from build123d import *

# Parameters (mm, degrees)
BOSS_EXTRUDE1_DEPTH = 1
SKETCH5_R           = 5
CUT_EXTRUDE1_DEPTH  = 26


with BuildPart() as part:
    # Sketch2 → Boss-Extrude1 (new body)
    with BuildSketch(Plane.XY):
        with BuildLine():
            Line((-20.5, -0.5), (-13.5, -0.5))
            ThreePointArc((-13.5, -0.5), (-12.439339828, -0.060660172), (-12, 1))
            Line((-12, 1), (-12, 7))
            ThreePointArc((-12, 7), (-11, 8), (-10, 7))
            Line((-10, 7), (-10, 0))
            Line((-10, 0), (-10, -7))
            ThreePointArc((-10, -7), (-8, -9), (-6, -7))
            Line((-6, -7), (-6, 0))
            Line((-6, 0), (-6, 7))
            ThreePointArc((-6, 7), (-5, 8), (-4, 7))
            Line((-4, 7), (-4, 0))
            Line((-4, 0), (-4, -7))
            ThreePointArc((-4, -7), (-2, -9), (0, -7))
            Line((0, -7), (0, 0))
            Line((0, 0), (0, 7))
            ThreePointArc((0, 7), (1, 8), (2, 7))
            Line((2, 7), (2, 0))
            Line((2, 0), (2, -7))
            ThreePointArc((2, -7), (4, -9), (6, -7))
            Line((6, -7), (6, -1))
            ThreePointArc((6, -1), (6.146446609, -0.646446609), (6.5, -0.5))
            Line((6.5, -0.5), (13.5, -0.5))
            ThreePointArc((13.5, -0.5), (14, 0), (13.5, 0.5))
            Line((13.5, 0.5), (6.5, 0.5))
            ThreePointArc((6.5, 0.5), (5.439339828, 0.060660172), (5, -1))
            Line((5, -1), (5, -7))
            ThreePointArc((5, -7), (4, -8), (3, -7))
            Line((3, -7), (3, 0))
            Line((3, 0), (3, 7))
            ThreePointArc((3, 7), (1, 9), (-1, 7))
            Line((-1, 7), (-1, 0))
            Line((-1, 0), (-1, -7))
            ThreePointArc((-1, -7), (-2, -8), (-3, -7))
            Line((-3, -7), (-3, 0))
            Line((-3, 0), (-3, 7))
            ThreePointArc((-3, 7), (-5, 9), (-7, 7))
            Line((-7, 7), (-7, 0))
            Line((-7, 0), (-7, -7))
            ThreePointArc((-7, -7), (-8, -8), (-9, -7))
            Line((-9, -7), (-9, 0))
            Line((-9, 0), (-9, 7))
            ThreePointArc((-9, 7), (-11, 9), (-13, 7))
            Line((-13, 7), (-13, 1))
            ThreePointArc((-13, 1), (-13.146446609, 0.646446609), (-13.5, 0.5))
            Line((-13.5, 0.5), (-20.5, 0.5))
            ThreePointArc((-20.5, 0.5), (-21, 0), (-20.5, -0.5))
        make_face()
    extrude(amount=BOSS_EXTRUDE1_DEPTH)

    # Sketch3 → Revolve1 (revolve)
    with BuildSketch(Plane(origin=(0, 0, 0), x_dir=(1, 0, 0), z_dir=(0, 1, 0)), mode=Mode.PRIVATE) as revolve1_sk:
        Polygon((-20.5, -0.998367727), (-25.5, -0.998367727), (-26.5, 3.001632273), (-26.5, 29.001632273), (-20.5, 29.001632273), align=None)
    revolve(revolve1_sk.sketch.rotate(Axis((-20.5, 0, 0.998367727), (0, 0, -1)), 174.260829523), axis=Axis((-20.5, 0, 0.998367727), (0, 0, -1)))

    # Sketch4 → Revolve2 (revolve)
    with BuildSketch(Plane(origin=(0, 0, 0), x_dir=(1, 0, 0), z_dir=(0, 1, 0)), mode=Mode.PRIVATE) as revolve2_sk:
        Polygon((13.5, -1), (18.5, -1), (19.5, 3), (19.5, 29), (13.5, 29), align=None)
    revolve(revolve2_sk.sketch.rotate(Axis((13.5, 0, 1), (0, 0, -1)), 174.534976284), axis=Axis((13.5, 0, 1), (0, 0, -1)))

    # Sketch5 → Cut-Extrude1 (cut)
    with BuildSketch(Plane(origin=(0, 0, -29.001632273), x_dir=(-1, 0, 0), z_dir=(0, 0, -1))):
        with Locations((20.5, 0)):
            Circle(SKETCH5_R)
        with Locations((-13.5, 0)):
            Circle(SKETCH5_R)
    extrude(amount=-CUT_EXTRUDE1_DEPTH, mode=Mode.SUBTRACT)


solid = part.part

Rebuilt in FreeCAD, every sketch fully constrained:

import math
import FreeCAD as App
import Part
import Sketcher
from FreeCAD import Vector

doc = App.newDocument("Part")
body = doc.addObject("PartDesign::Body", "Body")

# Sketch on XY plane
sketch1 = body.newObject("Sketcher::SketchObject", "Sketch")
sketch1.AttachmentSupport = (doc.getObject("XY_Plane"), [""])
sketch1.MapMode = "FlatFace"
sketch1.addGeometry(Part.LineSegment(Vector(-20.5, -0.5, 0), Vector(-13.5, -0.5, 0)), False)
sketch1.addGeometry(Part.ArcOfCircle(Part.Circle(Vector(-13.5, 1, 0), Vector(0, 0, 1), 1.5), math.radians(-90), math.radians(0)), False)
sketch1.addGeometry(Part.LineSegment(Vector(-12, 1, 0), Vector(-12, 7, 0)), False)
sketch1.addGeometry(Part.ArcOfCircle(Part.Circle(Vector(-11, 7, 0), Vector(0, 0, 1), 1), math.radians(0), math.radians(180)), False)
sketch1.addGeometry(Part.LineSegment(Vector(-10, 7, 0), Vector(-10, -7, 0)), False)
sketch1.addGeometry(Part.ArcOfCircle(Part.Circle(Vector(-8, -7, 0), Vector(0, 0, 1), 2), math.radians(180), math.radians(360)), False)
sketch1.addGeometry(Part.LineSegment(Vector(-6, -7, 0), Vector(-6, 7, 0)), False)
sketch1.addGeometry(Part.ArcOfCircle(Part.Circle(Vector(-5, 7, 0), Vector(0, 0, 1), 1), math.radians(0), math.radians(180)), False)
sketch1.addGeometry(Part.LineSegment(Vector(-4, 7, 0), Vector(-4, -7, 0)), False)
sketch1.addGeometry(Part.ArcOfCircle(Part.Circle(Vector(-2, -7, 0), Vector(0, 0, 1), 2), math.radians(180), math.radians(360)), False)
sketch1.addGeometry(Part.LineSegment(Vector(0, -7, 0), Vector(0, 7, 0)), False)
sketch1.addGeometry(Part.ArcOfCircle(Part.Circle(Vector(1, 7, 0), Vector(0, 0, 1), 1), math.radians(0), math.radians(180)), False)
sketch1.addGeometry(Part.LineSegment(Vector(2, 7, 0), Vector(2, -7, 0)), False)
sketch1.addGeometry(Part.ArcOfCircle(Part.Circle(Vector(4, -7, 0), Vector(0, 0, 1), 2), math.radians(180), math.radians(360)), False)
sketch1.addGeometry(Part.LineSegment(Vector(6, -7, 0), Vector(6, -1, 0)), False)
sketch1.addGeometry(Part.ArcOfCircle(Part.Circle(Vector(6.5, -1, 0), Vector(0, 0, 1), 0.5), math.radians(90), math.radians(180)), False)
sketch1.addGeometry(Part.LineSegment(Vector(6.5, -0.5, 0), Vector(13.5, -0.5, 0)), False)
sketch1.addGeometry(Part.ArcOfCircle(Part.Circle(Vector(13.5, 0, 0), Vector(0, 0, 1), 0.5), math.radians(-90), math.radians(90)), False)
sketch1.addGeometry(Part.LineSegment(Vector(13.5, 0.5, 0), Vector(6.5, 0.5, 0)), False)
sketch1.addGeometry(Part.ArcOfCircle(Part.Circle(Vector(6.5, -1, 0), Vector(0, 0, 1), 1.5), math.radians(90), math.radians(180)), False)
sketch1.addGeometry(Part.LineSegment(Vector(5, -1, 0), Vector(5, -7, 0)), False)
sketch1.addGeometry(Part.ArcOfCircle(Part.Circle(Vector(4, -7, 0), Vector(0, 0, 1), 1), math.radians(180), math.radians(360)), False)
sketch1.addGeometry(Part.LineSegment(Vector(3, -7, 0), Vector(3, 7, 0)), False)
sketch1.addGeometry(Part.ArcOfCircle(Part.Circle(Vector(1, 7, 0), Vector(0, 0, 1), 2), math.radians(0), math.radians(180)), False)
sketch1.addGeometry(Part.LineSegment(Vector(-1, 7, 0), Vector(-1, -7, 0)), False)
sketch1.addGeometry(Part.ArcOfCircle(Part.Circle(Vector(-2, -7, 0), Vector(0, 0, 1), 1), math.radians(180), math.radians(360)), False)
sketch1.addGeometry(Part.LineSegment(Vector(-3, -7, 0), Vector(-3, 7, 0)), False)
sketch1.addGeometry(Part.ArcOfCircle(Part.Circle(Vector(-5, 7, 0), Vector(0, 0, 1), 2), math.radians(0), math.radians(180)), False)
sketch1.addGeometry(Part.LineSegment(Vector(-7, 7, 0), Vector(-7, -7, 0)), False)
sketch1.addGeometry(Part.ArcOfCircle(Part.Circle(Vector(-8, -7, 0), Vector(0, 0, 1), 1), math.radians(180), math.radians(360)), False)
sketch1.addGeometry(Part.LineSegment(Vector(-9, -7, 0), Vector(-9, 7, 0)), False)
sketch1.addGeometry(Part.ArcOfCircle(Part.Circle(Vector(-11, 7, 0), Vector(0, 0, 1), 2), math.radians(0), math.radians(180)), False)
sketch1.addGeometry(Part.LineSegment(Vector(-13, 7, 0), Vector(-13, 1, 0)), False)
sketch1.addGeometry(Part.ArcOfCircle(Part.Circle(Vector(-13.5, 1, 0), Vector(0, 0, 1), 0.5), math.radians(-90), math.radians(0)), False)
sketch1.addGeometry(Part.LineSegment(Vector(-13.5, 0.5, 0), Vector(-20.5, 0.5, 0)), False)
sketch1.addGeometry(Part.ArcOfCircle(Part.Circle(Vector(-20.5, 0, 0), Vector(0, 0, 1), 0.5), math.radians(90), math.radians(270)), False)
sketch1.addConstraint(Sketcher.Constraint("Tangent", 0, 2, 1, 1))
sketch1.addConstraint(Sketcher.Constraint("Tangent", 1, 2, 2, 1))
sketch1.addConstraint(Sketcher.Constraint("Tangent", 2, 2, 3, 2))
sketch1.addConstraint(Sketcher.Constraint("Tangent", 3, 1, 4, 1))
sketch1.addConstraint(Sketcher.Constraint("Tangent", 4, 2, 5, 1))
sketch1.addConstraint(Sketcher.Constraint("Tangent", 5, 2, 6, 1))
sketch1.addConstraint(Sketcher.Constraint("Tangent", 6, 2, 7, 2))
sketch1.addConstraint(Sketcher.Constraint("Tangent", 7, 1, 8, 1))
sketch1.addConstraint(Sketcher.Constraint("Tangent", 8, 2, 9, 1))
sketch1.addConstraint(Sketcher.Constraint("Tangent", 9, 2, 10, 1))
sketch1.addConstraint(Sketcher.Constraint("Tangent", 10, 2, 11, 2))
sketch1.addConstraint(Sketcher.Constraint("Tangent", 11, 1, 12, 1))
sketch1.addConstraint(Sketcher.Constraint("Tangent", 12, 2, 13, 1))
sketch1.addConstraint(Sketcher.Constraint("Tangent", 13, 2, 14, 1))
sketch1.addConstraint(Sketcher.Constraint("Tangent", 14, 2, 15, 2))
sketch1.addConstraint(Sketcher.Constraint("Tangent", 15, 1, 16, 1))
sketch1.addConstraint(Sketcher.Constraint("Tangent", 16, 2, 17, 1))
sketch1.addConstraint(Sketcher.Constraint("Tangent", 17, 2, 18, 1))
sketch1.addConstraint(Sketcher.Constraint("Tangent", 18, 2, 19, 1))
sketch1.addConstraint(Sketcher.Constraint("Tangent", 19, 2, 20, 1))
sketch1.addConstraint(Sketcher.Constraint("Tangent", 20, 2, 21, 2))
sketch1.addConstraint(Sketcher.Constraint("Tangent", 21, 1, 22, 1))
sketch1.addConstraint(Sketcher.Constraint("Tangent", 22, 2, 23, 1))
sketch1.addConstraint(Sketcher.Constraint("Tangent", 23, 2, 24, 1))
sketch1.addConstraint(Sketcher.Constraint("Tangent", 24, 2, 25, 2))
sketch1.addConstraint(Sketcher.Constraint("Tangent", 25, 1, 26, 1))
sketch1.addConstraint(Sketcher.Constraint("Tangent", 26, 2, 27, 1))
sketch1.addConstraint(Sketcher.Constraint("Tangent", 27, 2, 28, 1))
sketch1.addConstraint(Sketcher.Constraint("Tangent", 28, 2, 29, 2))
sketch1.addConstraint(Sketcher.Constraint("Tangent", 29, 1, 30, 1))
sketch1.addConstraint(Sketcher.Constraint("Tangent", 30, 2, 31, 1))
sketch1.addConstraint(Sketcher.Constraint("Tangent", 31, 2, 32, 1))
sketch1.addConstraint(Sketcher.Constraint("Tangent", 32, 2, 33, 2))
sketch1.addConstraint(Sketcher.Constraint("Tangent", 33, 1, 34, 1))
sketch1.addConstraint(Sketcher.Constraint("Tangent", 34, 2, 35, 1))
sketch1.addConstraint(Sketcher.Constraint("Tangent", 35, 2, 0, 1))
sketch1.addConstraint(Sketcher.Constraint("Horizontal", 0))
sketch1.addConstraint(Sketcher.Constraint("Vertical", 2))
sketch1.addConstraint(Sketcher.Constraint("Vertical", 4))
sketch1.addConstraint(Sketcher.Constraint("Vertical", 6))
sketch1.addConstraint(Sketcher.Constraint("Vertical", 8))
sketch1.addConstraint(Sketcher.Constraint("Vertical", 10))
sketch1.addConstraint(Sketcher.Constraint("Vertical", 12))
sketch1.addConstraint(Sketcher.Constraint("Vertical", 14))
sketch1.addConstraint(Sketcher.Constraint("Horizontal", 16))
sketch1.addConstraint(Sketcher.Constraint("Horizontal", 18))
sketch1.addConstraint(Sketcher.Constraint("Vertical", 20))
sketch1.addConstraint(Sketcher.Constraint("Vertical", 22))
sketch1.addConstraint(Sketcher.Constraint("Vertical", 24))
sketch1.addConstraint(Sketcher.Constraint("Vertical", 26))
sketch1.addConstraint(Sketcher.Constraint("Vertical", 28))
sketch1.addConstraint(Sketcher.Constraint("Vertical", 30))
sketch1.addConstraint(Sketcher.Constraint("Vertical", 32))
sketch1.addConstraint(Sketcher.Constraint("Horizontal", 34))
sketch1.addConstraint(Sketcher.Constraint("Coincident", 19, 3, 15, 3))
sketch1.addConstraint(Sketcher.Constraint("Coincident", 21, 3, 13, 3))
sketch1.addConstraint(Sketcher.Constraint("Coincident", 23, 3, 11, 3))
sketch1.addConstraint(Sketcher.Constraint("Coincident", 25, 3, 9, 3))
sketch1.addConstraint(Sketcher.Constraint("Coincident", 27, 3, 7, 3))
sketch1.addConstraint(Sketcher.Constraint("Coincident", 29, 3, 5, 3))
sketch1.addConstraint(Sketcher.Constraint("Coincident", 31, 3, 3, 3))
sketch1.addConstraint(Sketcher.Constraint("Coincident", 33, 3, 1, 3))
sketch1.addConstraint(Sketcher.Constraint("Equal", 3, 7))
sketch1.addConstraint(Sketcher.Constraint("Equal", 5, 9))
sketch1.addConstraint(Sketcher.Constraint("Equal", 7, 11))
sketch1.addConstraint(Sketcher.Constraint("Equal", 9, 13))
sketch1.addConstraint(Sketcher.Constraint("Equal", 15, 17))
sketch1.addConstraint(Sketcher.Constraint("Equal", 1, 19))
sketch1.addConstraint(Sketcher.Constraint("Equal", 11, 21))
sketch1.addConstraint(Sketcher.Constraint("Symmetric", 9, 2, 10, 2, -1, 1))
sketch1.addConstraint(Sketcher.Constraint("Symmetric", 0, 2, 17, 2, -1, 1))
sketch1.addConstraint(Sketcher.Constraint("PointOnObject", 17, 3, -1))
sketch1.addConstraint(Sketcher.Constraint("Horizontal", 3, 3, 7, 3))
sketch1.addConstraint(Sketcher.Constraint("Horizontal", 5, 3, 9, 3))
sketch1.addConstraint(Sketcher.Constraint("Horizontal", 7, 3, 11, 3))
sketch1.addConstraint(Sketcher.Constraint("Horizontal", 9, 3, 13, 3))
sketch1.addConstraint(Sketcher.Constraint("Equal", 0, 16))
sketch1.addConstraint(Sketcher.Constraint("Radius", 3, 1.0))
sketch1.addConstraint(Sketcher.Constraint("Radius", 5, 2.0))
sketch1.addConstraint(Sketcher.Constraint("DistanceY", 2, 1, 2, 2, 6.0))
pad1 = body.newObject("PartDesign::Pad", "Pad")
pad1.Profile = sketch1
pad1.Length = 1

# Sketch on XZ plane
sketch2 = body.newObject("Sketcher::SketchObject", "Sketch001")
sketch2.AttachmentSupport = (doc.getObject("XZ_Plane"), [""])
sketch2.MapMode = "FlatFace"
sketch2.addGeometry(Part.LineSegment(Vector(-25.5, 0.998368, 0), Vector(-20.5, 0.998368, 0)), False)
sketch2.addGeometry(Part.LineSegment(Vector(-20.5, 0.998368, 0), Vector(-20.5, -29.001632, 0)), False)
sketch2.addGeometry(Part.LineSegment(Vector(-20.5, -29.001632, 0), Vector(-26.5, -29.001632, 0)), False)
sketch2.addGeometry(Part.LineSegment(Vector(-26.5, -29.001632, 0), Vector(-26.5, -3.001632, 0)), False)
sketch2.addGeometry(Part.LineSegment(Vector(-26.5, -3.001632, 0), Vector(-25.5, 0.998368, 0)), False)
sketch2.addGeometry(Part.LineSegment(Vector(-20.5, 0.998368, 0), Vector(-20.5, -29.001632, 0)), True)  # axis
sketch2.addConstraint(Sketcher.Constraint("Coincident", 0, 2, 1, 1))
sketch2.addConstraint(Sketcher.Constraint("Coincident", 1, 2, 2, 1))
sketch2.addConstraint(Sketcher.Constraint("Coincident", 2, 2, 3, 1))
sketch2.addConstraint(Sketcher.Constraint("Coincident", 3, 2, 4, 1))
sketch2.addConstraint(Sketcher.Constraint("Coincident", 4, 2, 0, 1))
sketch2.addConstraint(Sketcher.Constraint("Horizontal", 0))
sketch2.addConstraint(Sketcher.Constraint("Vertical", 1))
sketch2.addConstraint(Sketcher.Constraint("Horizontal", 2))
sketch2.addConstraint(Sketcher.Constraint("Vertical", 3))
sketch2.addConstraint(Sketcher.Constraint("Vertical", 5))
sketch2.addConstraint(Sketcher.Constraint("Coincident", 5, 1, 0, 2))
sketch2.addConstraint(Sketcher.Constraint("Horizontal", 2, 2, 5, 2))
sketch2.addConstraint(Sketcher.Constraint("DistanceX", 0, 1, 0, 2, 5.0))
sketch2.addConstraint(Sketcher.Constraint("DistanceX", 2, 2, 2, 1, 6.0))
sketch2.addConstraint(Sketcher.Constraint("DistanceY", 1, 2, 1, 1, 30.0))
sketch2.addConstraint(Sketcher.Constraint("DistanceY", 3, 1, 3, 2, 26.0))
sketch2.addConstraint(Sketcher.Constraint("DistanceX", 0, 2, -1, 1, 20.5))
sketch2.addConstraint(Sketcher.Constraint("DistanceY", -1, 1, 0, 2, 0.998368))
revolution = body.newObject("PartDesign::Revolution", "Revolution")
revolution.Profile = sketch2
revolution.ReferenceAxis = (sketch2, ["Axis0"])
revolution.Angle = 360

# Sketch on XZ plane
sketch3 = body.newObject("Sketcher::SketchObject", "Sketch002")
sketch3.AttachmentSupport = (doc.getObject("XZ_Plane"), [""])
sketch3.MapMode = "FlatFace"
sketch3.addGeometry(Part.LineSegment(Vector(13.5, 1, 0), Vector(18.5, 1, 0)), False)
sketch3.addGeometry(Part.LineSegment(Vector(18.5, 1, 0), Vector(19.5, -3, 0)), False)
sketch3.addGeometry(Part.LineSegment(Vector(19.5, -3, 0), Vector(19.5, -29, 0)), False)
sketch3.addGeometry(Part.LineSegment(Vector(19.5, -29, 0), Vector(13.5, -29, 0)), False)
sketch3.addGeometry(Part.LineSegment(Vector(13.5, -29, 0), Vector(13.5, 1, 0)), False)
sketch3.addGeometry(Part.LineSegment(Vector(13.5, 1, 0), Vector(13.5, -29, 0)), True)  # axis
sketch3.addConstraint(Sketcher.Constraint("Coincident", 0, 2, 1, 1))
sketch3.addConstraint(Sketcher.Constraint("Coincident", 1, 2, 2, 1))
sketch3.addConstraint(Sketcher.Constraint("Coincident", 2, 2, 3, 1))
sketch3.addConstraint(Sketcher.Constraint("Coincident", 3, 2, 4, 1))
sketch3.addConstraint(Sketcher.Constraint("Coincident", 4, 2, 0, 1))
sketch3.addConstraint(Sketcher.Constraint("Horizontal", 0))
sketch3.addConstraint(Sketcher.Constraint("Vertical", 2))
sketch3.addConstraint(Sketcher.Constraint("Horizontal", 3))
sketch3.addConstraint(Sketcher.Constraint("Vertical", 4))
sketch3.addConstraint(Sketcher.Constraint("Vertical", 5))
sketch3.addConstraint(Sketcher.Constraint("Coincident", 5, 1, 4, 2))
sketch3.addConstraint(Sketcher.Constraint("Horizontal", 2, 2, 5, 2))
sketch3.addConstraint(Sketcher.Constraint("DistanceX", 0, 1, 0, 2, 5.0))
sketch3.addConstraint(Sketcher.Constraint("DistanceX", 3, 2, 3, 1, 6.0))
sketch3.addConstraint(Sketcher.Constraint("DistanceY", 2, 2, 2, 1, 26.0))
sketch3.addConstraint(Sketcher.Constraint("DistanceY", 4, 1, 4, 2, 30.0))
sketch3.addConstraint(Sketcher.Constraint("DistanceY", -1, 1, 0, 2, 1.0))
sketch3.addConstraint(Sketcher.Constraint("DistanceX", -1, 1, 0, 2, 18.5))
revolution2 = body.newObject("PartDesign::Revolution", "Revolution001")
revolution2.Profile = sketch3
revolution2.ReferenceAxis = (sketch3, ["Axis0"])
revolution2.Angle = 360

# Sketch on XY plane
sketch4 = body.newObject("Sketcher::SketchObject", "Sketch003")
sketch4.AttachmentSupport = (doc.getObject("XY_Plane"), [""])
sketch4.MapMode = "FlatFace"
sketch4.AttachmentOffset = App.Placement(Vector(0, 0, -29.001632), App.Rotation())
sketch4.addGeometry(Part.Circle(Vector(-20.5, 0, 0), Vector(0, 0, 1), 5), False)
sketch4.addGeometry(Part.Circle(Vector(13.5, 0, 0), Vector(0, 0, 1), 5), False)
sketch4.addConstraint(Sketcher.Constraint("Equal", 0, 1))
sketch4.addConstraint(Sketcher.Constraint("PointOnObject", 0, 3, -1))
sketch4.addConstraint(Sketcher.Constraint("PointOnObject", 1, 3, -1))
sketch4.addConstraint(Sketcher.Constraint("Diameter", 0, 10.0))
sketch4.addConstraint(Sketcher.Constraint("DistanceX", 0, 3, 1, 3, 34.0))
sketch4.addConstraint(Sketcher.Constraint("DistanceX", 0, 3, -1, 1, 20.5))
pocket1 = body.newObject("PartDesign::Pocket", "Pocket")
pocket1.Profile = sketch4
pocket1.Length = 26
pocket1.Reversed = True

doc.recompute()
